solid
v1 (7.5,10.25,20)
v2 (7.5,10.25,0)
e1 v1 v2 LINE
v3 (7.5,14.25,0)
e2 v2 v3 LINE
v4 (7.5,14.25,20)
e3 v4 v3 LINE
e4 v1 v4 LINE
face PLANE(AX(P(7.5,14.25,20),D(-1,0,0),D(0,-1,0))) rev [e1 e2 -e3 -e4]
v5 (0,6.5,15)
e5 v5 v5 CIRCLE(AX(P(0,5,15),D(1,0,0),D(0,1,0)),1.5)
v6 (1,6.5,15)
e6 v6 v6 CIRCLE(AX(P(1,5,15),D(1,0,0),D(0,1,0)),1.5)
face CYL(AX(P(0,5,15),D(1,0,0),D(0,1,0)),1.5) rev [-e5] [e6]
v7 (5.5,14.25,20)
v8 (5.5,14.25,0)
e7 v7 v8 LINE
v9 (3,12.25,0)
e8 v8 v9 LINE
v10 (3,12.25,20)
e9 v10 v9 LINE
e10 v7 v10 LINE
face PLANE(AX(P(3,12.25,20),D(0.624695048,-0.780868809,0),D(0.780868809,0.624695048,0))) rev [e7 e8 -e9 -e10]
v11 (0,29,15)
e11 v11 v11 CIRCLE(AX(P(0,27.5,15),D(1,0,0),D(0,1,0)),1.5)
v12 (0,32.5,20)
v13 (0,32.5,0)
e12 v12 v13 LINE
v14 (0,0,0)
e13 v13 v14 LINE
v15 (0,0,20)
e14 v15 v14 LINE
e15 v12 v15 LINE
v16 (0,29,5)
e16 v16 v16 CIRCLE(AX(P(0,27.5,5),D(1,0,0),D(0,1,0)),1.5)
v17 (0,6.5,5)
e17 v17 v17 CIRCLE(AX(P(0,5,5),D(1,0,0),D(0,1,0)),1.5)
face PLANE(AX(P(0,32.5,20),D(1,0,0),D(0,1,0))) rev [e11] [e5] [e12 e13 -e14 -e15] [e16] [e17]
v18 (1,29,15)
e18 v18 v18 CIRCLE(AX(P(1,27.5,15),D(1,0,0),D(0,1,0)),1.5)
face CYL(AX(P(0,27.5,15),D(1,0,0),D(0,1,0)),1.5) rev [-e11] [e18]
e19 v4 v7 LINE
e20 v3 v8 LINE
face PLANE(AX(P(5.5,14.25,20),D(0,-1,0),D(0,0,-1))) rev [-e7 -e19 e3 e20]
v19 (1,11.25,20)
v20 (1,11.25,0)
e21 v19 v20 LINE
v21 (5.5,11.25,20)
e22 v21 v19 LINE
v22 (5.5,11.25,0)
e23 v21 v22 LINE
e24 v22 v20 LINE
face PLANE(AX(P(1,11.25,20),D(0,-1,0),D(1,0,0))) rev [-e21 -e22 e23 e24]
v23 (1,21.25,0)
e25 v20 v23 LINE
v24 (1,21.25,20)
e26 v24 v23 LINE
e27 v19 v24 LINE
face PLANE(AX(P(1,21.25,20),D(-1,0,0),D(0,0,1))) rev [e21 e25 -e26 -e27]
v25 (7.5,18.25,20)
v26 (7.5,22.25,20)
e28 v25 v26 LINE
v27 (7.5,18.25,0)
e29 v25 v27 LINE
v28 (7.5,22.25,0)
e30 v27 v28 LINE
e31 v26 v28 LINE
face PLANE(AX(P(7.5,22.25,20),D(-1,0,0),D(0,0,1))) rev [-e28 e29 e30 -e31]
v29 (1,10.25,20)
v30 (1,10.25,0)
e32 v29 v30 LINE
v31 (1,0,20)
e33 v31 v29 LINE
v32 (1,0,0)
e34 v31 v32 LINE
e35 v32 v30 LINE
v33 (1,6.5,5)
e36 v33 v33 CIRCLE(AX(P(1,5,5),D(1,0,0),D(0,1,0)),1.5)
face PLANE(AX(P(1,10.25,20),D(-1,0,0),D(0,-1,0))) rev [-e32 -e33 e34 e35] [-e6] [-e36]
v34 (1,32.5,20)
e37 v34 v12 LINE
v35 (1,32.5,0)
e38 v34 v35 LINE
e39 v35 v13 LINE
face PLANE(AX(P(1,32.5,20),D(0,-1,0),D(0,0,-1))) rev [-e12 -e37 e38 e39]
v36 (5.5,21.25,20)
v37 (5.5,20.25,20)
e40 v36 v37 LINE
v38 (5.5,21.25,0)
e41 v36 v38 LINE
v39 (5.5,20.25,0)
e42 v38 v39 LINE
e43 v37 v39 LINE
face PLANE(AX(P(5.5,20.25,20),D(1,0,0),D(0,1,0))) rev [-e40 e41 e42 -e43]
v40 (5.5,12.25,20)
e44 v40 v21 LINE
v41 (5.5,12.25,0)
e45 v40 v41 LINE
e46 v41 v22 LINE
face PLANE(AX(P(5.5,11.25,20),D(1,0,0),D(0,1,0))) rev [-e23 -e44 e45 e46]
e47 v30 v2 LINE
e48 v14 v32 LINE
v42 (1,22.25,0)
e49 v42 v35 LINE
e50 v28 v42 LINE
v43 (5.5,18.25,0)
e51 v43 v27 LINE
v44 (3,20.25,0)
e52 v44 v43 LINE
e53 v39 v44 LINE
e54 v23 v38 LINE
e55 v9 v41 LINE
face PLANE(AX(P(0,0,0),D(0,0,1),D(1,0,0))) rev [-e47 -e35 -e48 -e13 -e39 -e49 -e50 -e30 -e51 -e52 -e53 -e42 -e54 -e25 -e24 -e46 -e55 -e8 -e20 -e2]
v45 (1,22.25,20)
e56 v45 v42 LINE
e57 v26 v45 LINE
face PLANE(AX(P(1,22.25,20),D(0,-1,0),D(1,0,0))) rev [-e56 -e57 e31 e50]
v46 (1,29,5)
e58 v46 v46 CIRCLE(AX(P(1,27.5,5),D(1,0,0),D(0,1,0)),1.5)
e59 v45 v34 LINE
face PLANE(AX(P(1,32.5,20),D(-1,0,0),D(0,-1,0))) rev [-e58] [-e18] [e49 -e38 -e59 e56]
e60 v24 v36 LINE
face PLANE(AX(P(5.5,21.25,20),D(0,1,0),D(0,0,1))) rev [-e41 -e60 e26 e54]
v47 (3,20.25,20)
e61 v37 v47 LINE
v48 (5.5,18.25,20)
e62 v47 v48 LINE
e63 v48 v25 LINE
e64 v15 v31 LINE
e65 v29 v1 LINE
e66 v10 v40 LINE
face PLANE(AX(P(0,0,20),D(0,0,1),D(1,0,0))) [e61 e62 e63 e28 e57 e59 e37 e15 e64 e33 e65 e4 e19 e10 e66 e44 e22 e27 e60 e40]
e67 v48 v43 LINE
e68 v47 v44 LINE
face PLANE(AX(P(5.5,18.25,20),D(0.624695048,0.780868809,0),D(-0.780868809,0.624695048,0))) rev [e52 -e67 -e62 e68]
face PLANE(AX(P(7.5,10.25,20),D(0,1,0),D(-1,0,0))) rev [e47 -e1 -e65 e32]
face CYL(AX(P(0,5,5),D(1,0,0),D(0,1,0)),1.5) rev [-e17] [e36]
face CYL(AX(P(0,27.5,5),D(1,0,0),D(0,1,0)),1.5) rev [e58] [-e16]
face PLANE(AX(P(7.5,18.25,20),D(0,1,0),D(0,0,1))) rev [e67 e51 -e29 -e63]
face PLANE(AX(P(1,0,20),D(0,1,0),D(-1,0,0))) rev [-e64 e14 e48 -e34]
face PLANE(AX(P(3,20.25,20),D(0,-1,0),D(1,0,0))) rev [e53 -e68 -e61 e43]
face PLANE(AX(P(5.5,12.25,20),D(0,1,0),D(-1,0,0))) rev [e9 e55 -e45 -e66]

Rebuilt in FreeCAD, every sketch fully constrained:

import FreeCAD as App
import Part
import Sketcher

V = App.Vector


def add_polygon(sketch, points):
    """Adds a closed chain of lines whose ends are joined by coincident constraints."""
    first, n = sketch.GeometryCount, len(points)
    for a, b in zip(points, points[1:] + points[:1]):
        sketch.addGeometry(Part.LineSegment(App.Vector(*a, 0), App.Vector(*b, 0)), False)
    for i in range(n):
        sketch.addConstraint(Sketcher.Constraint("Coincident", first + i, 2, first + (i + 1) % n, 1))

doc = App.newDocument("Part")
body = doc.addObject("PartDesign::Body", "Body")

# Sketch on XY plane
sketch1 = doc.addObject("Sketcher::SketchObject", "Sketch")
body.addObject(sketch1)
sketch1.AttachmentSupport = (doc.XY_Plane, [""])
sketch1.MapMode = "FlatFace"
add_polygon(sketch1, [(1, 22.2), (1, 32.5), (0, 32.5), (0, 0), (1, 0), (1, 10.2), (7.5, 10.2), (7.5, 14.2), (5.5, 14.2), (3, 12.2), (5.5, 12.2), (5.5, 11.2), (1, 11.2), (1, 21.2), (5.5, 21.2), (5.5, 20.2), (3, 20.2), (5.5, 18.2), (7.5, 18.2), (7.5, 22.2)])  # lines 0-19
sketch1.addConstraint([
    Sketcher.Constraint("Vertical", 0),
    Sketcher.Constraint("Horizontal", 1),
    Sketcher.Constraint("Vertical", 2),
    Sketcher.Constraint("Horizontal", 3),
    Sketcher.Constraint("Vertical", 4),
    Sketcher.Constraint("Horizontal", 5),
    Sketcher.Constraint("Vertical", 6),
    Sketcher.Constraint("Horizontal", 7),
    Sketcher.Constraint("Horizontal", 9),
    Sketcher.Constraint("Vertical", 10),
    Sketcher.Constraint("Horizontal", 11),
    Sketcher.Constraint("Vertical", 12),
    Sketcher.Constraint("Horizontal", 13),
    Sketcher.Constraint("Vertical", 14),
    Sketcher.Constraint("Horizontal", 15),
    Sketcher.Constraint("Horizontal", 17),
    Sketcher.Constraint("Vertical", 18),
    Sketcher.Constraint("Horizontal", 19),
    Sketcher.Constraint("Coincident", 2, 2, -1, 1),
    Sketcher.Constraint("Vertical", 0, 2, 3, 2),
    Sketcher.Constraint("Vertical", 7, 2, 9, 2),
    Sketcher.Constraint("Vertical", 4, 2, 11, 2),
    Sketcher.Constraint("Vertical", 10, 2, 13, 2),
    Sketcher.Constraint("Vertical", 8, 2, 15, 2),
    Sketcher.Constraint("Vertical", 14, 2, 16, 2),
    Sketcher.Constraint("Vertical", 6, 2, 17, 2),
    Sketcher.Constraint("Equal", 0, 4),
    Sketcher.Constraint("Equal", 3, 10),
    Sketcher.Constraint("Equal", 10, 14),
    Sketcher.Constraint("Equal", 6, 18),
    Sketcher.Constraint("Equal", 8, 16),
    Sketcher.Constraint("DistanceX", 1, 2, 1, 1, 1.0),
    Sketcher.Constraint("DistanceX", 7, 2, 7, 1, 2.0),
    Sketcher.Constraint("DistanceY", 6, 1, 6, 2, 4.0),
    Sketcher.Constraint("DistanceY", 12, 1, 12, 2, 10.0),
    Sketcher.Constraint("DistanceX", 5, 1, 5, 2, 6.5),
    Sketcher.Constraint("DistanceX", 9, 1, 9, 2, 2.5),
    Sketcher.Constraint("DistanceY", 2, 2, 2, 1, 32.5),
    Sketcher.Constraint("DistanceY", 4, 2, 8, 2, 2.0),
])
pad1 = doc.addObject("PartDesign::Pad", "Pad")
body.addObject(pad1)
pad1.Profile = sketch1
pad1.Length = 20

# Sketch on YZ plane
sketch2 = doc.addObject("Sketcher::SketchObject", "Sketch001")
body.addObject(sketch2)
sketch2.AttachmentSupport = (doc.YZ_Plane, [""])
sketch2.MapMode = "FlatFace"
sketch2.AttachmentOffset = App.Placement(V(0, 0, 1), App.Rotation())
sketch2.addGeometry([
    Part.Circle(V(27.5, 15, 0), V(0, 0, 1), 1.5),
    Part.Circle(V(5, 15, 0), V(0, 0, 1), 1.5),
], False)
sketch2.addConstraint([
    Sketcher.Constraint("Equal", 0, 1),
    Sketcher.Constraint("Horizontal", 0, 3, 1, 3),
    Sketcher.Constraint("Diameter", 0, 3.0),
    Sketcher.Constraint("DistanceY", -1, 1, 0, 3, 15.0),
    Sketcher.Constraint("DistanceX", -1, 1, 1, 3, 5.0),
    Sketcher.Constraint("DistanceX", -1, 1, 0, 3, 27.5),
])
pocket1 = doc.addObject("PartDesign::Pocket", "Pocket")
body.addObject(pocket1)
pocket1.Profile = sketch2
pocket1.Type = "ThroughAll"
doc.recompute()

linearpattern = doc.addObject("PartDesign::LinearPattern", "LinearPattern")
body.addObject(linearpattern)
linearpattern.Originals = [pocket1]
linearpattern.Direction = (doc.Z_Axis, [""])
linearpattern.Mode = "offset"
linearpattern.Offset = 10
linearpattern.Occurrences = 2
linearpattern.Reversed = True
body.Tip = linearpattern

doc.recompute()
